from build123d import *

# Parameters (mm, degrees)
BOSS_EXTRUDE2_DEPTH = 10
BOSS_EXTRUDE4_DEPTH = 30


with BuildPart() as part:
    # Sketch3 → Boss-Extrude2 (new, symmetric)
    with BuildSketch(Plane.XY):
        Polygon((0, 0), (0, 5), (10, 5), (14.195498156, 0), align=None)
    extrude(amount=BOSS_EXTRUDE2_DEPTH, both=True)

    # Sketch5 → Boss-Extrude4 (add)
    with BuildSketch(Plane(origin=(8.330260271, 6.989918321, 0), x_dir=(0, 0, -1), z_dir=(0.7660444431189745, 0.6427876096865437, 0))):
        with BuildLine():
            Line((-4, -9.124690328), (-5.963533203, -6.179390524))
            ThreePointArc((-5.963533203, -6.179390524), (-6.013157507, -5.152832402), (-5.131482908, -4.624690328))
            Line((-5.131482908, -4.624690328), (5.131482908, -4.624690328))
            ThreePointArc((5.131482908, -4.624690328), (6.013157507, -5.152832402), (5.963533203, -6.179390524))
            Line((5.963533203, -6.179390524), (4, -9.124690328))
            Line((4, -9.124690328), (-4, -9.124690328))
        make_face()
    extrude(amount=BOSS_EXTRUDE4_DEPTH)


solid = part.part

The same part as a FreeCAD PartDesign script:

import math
import FreeCAD as App
import Part
import Sketcher
Q = App.Units.Quantity

doc = App.newDocument("Part")
params = doc.addObject("Spreadsheet::Sheet", "Params")
for row, (alias, value) in enumerate([
    ("sketch1_width", "10 mm"),
    ("sketch1_height", "5 mm"),
    ("pad1_length", "20 mm"),
    ("sketch2_radius", "1 mm"),
    ("sketch2_width", "8 mm"),
    ("pad2_length", "30 mm"),
], start=1):
    params.set(f"A{row}", alias)
    params.set(f"B{row}", "=" + value)
    params.setAlias(f"B{row}", alias)

body = doc.addObject("PartDesign::Body", "Body")

# Sketch on XY plane
sketch1 = body.newObject("Sketcher::SketchObject", "Sketch")
sketch1.AttachmentSupport = (doc.getObject("XY_Plane"), [""])
sketch1.MapMode = "FlatFace"
sketch1.addGeometry([
    Part.LineSegment(App.Vector(0, 5, 0), App.Vector(0, 0, 0)),
    Part.LineSegment(App.Vector(0, 0, 0), App.Vector(14, 0, 0)),
    Part.LineSegment(App.Vector(14, 0, 0), App.Vector(10, 5, 0)),
    Part.LineSegment(App.Vector(10, 5, 0), App.Vector(0, 5, 0)),
], False)
sketch1.addConstraint([
    Sketcher.Constraint("Coincident", 0, 2, 1, 1),
    Sketcher.Constraint("Coincident", 1, 2, 2, 1),
    Sketcher.Constraint("Coincident", 2, 2, 3, 1),
    Sketcher.Constraint("Coincident", 3, 2, 0, 1),
    Sketcher.Constraint("Vertical", 0),
    Sketcher.Constraint("Horizontal", 1),
    Sketcher.Constraint("Horizontal", 3),
    Sketcher.Constraint("Coincident", 0, 2, -1, 1),
    Sketcher.Constraint("DistanceX", 3, 2, 3, 1, 10.0),
    Sketcher.Constraint("DistanceY", 0, 2, 0, 1, 5.0),
    Sketcher.Constraint("Angle", 2, Q("130 deg")),
])
sketch1.setExpression("Constraints[8]", "Params.sketch1_width")
sketch1.setExpression("Constraints[9]", "Params.sketch1_height")
pad1 = body.newObject("PartDesign::Pad", "Pad")
pad1.Profile = sketch1
pad1.setExpression("Length", "Params.pad1_length")
pad1.Midplane = True

# Sketch on an angled plane
sketch2 = body.newObject("Sketcher::SketchObject", "Sketch001")
sketch2.Placement = App.Placement(App.Vector(8.33026, 6.989918, 0), App.Rotation(App.Vector(0, 0, -1), App.Vector(-0.64278761, 0.766044443, 0), App.Vector(0.766044443, 0.64278761, 0), "ZXY"))
sketch2.addGeometry([
    Part.LineSegment(App.Vector(-6, -6.2, 0), App.Vector(-4, -9.1, 0)),  # 0
    Part.LineSegment(App.Vector(-4, -9.1, 0), App.Vector(4, -9.1, 0)),  # 1
    Part.LineSegment(App.Vector(4, -9.1, 0), App.Vector(6, -6.2, 0)),  # 2
    Part.ArcOfCircle(Part.Circle(App.Vector(5.1, -5.6, 0), App.Vector(0, 0, 1), 1), math.radians(-34), math.radians(90)),  # 3
    Part.LineSegment(App.Vector(5.1, -4.6, 0), App.Vector(-5.1, -4.6, 0)),  # 4
    Part.ArcOfCircle(Part.Circle(App.Vector(-5.1, -5.6, 0), App.Vector(0, 0, 1), 1), math.radians(90), math.radians(214)),  # 5
], False)
sketch2.addConstraint([
    Sketcher.Constraint("Coincident", 0, 2, 1, 1),
    Sketcher.Constraint("Coincident", 1, 2, 2, 1),
    Sketcher.Constraint("Tangent", 2, 2, 3, 1),
    Sketcher.Constraint("Tangent", 3, 2, 4, 1),
    Sketcher.Constraint("Tangent", 4, 2, 5, 1),
    Sketcher.Constraint("Tangent", 5, 2, 0, 1),
    Sketcher.Constraint("Horizontal", 1),
    Sketcher.Constraint("Horizontal", 4),
    Sketcher.Constraint("Equal", 3, 5),
    Sketcher.Constraint("Symmetric", 2, 2, 5, 2, -2),
    Sketcher.Constraint("Radius", 3, 1.0),
    Sketcher.Constraint("DistanceX", 1, 1, 1, 2, 8.0),
    Sketcher.Constraint("DistanceY", 0, 2, 5, 3, 3.5),
    Sketcher.Constraint("DistanceY", 2, 2, 3, 3, 0.5547),
    Sketcher.Constraint("DistanceY", 3, 3, -1, 1, 5.62469),
])
sketch2.setExpression("Constraints[10]", "Params.sketch2_radius")
sketch2.setExpression("Constraints[11]", "Params.sketch2_width")
pad2 = body.newObject("PartDesign::Pad", "Pad001")
pad2.Profile = sketch2
pad2.setExpression("Length", "Params.pad2_length")

doc.recompute()
